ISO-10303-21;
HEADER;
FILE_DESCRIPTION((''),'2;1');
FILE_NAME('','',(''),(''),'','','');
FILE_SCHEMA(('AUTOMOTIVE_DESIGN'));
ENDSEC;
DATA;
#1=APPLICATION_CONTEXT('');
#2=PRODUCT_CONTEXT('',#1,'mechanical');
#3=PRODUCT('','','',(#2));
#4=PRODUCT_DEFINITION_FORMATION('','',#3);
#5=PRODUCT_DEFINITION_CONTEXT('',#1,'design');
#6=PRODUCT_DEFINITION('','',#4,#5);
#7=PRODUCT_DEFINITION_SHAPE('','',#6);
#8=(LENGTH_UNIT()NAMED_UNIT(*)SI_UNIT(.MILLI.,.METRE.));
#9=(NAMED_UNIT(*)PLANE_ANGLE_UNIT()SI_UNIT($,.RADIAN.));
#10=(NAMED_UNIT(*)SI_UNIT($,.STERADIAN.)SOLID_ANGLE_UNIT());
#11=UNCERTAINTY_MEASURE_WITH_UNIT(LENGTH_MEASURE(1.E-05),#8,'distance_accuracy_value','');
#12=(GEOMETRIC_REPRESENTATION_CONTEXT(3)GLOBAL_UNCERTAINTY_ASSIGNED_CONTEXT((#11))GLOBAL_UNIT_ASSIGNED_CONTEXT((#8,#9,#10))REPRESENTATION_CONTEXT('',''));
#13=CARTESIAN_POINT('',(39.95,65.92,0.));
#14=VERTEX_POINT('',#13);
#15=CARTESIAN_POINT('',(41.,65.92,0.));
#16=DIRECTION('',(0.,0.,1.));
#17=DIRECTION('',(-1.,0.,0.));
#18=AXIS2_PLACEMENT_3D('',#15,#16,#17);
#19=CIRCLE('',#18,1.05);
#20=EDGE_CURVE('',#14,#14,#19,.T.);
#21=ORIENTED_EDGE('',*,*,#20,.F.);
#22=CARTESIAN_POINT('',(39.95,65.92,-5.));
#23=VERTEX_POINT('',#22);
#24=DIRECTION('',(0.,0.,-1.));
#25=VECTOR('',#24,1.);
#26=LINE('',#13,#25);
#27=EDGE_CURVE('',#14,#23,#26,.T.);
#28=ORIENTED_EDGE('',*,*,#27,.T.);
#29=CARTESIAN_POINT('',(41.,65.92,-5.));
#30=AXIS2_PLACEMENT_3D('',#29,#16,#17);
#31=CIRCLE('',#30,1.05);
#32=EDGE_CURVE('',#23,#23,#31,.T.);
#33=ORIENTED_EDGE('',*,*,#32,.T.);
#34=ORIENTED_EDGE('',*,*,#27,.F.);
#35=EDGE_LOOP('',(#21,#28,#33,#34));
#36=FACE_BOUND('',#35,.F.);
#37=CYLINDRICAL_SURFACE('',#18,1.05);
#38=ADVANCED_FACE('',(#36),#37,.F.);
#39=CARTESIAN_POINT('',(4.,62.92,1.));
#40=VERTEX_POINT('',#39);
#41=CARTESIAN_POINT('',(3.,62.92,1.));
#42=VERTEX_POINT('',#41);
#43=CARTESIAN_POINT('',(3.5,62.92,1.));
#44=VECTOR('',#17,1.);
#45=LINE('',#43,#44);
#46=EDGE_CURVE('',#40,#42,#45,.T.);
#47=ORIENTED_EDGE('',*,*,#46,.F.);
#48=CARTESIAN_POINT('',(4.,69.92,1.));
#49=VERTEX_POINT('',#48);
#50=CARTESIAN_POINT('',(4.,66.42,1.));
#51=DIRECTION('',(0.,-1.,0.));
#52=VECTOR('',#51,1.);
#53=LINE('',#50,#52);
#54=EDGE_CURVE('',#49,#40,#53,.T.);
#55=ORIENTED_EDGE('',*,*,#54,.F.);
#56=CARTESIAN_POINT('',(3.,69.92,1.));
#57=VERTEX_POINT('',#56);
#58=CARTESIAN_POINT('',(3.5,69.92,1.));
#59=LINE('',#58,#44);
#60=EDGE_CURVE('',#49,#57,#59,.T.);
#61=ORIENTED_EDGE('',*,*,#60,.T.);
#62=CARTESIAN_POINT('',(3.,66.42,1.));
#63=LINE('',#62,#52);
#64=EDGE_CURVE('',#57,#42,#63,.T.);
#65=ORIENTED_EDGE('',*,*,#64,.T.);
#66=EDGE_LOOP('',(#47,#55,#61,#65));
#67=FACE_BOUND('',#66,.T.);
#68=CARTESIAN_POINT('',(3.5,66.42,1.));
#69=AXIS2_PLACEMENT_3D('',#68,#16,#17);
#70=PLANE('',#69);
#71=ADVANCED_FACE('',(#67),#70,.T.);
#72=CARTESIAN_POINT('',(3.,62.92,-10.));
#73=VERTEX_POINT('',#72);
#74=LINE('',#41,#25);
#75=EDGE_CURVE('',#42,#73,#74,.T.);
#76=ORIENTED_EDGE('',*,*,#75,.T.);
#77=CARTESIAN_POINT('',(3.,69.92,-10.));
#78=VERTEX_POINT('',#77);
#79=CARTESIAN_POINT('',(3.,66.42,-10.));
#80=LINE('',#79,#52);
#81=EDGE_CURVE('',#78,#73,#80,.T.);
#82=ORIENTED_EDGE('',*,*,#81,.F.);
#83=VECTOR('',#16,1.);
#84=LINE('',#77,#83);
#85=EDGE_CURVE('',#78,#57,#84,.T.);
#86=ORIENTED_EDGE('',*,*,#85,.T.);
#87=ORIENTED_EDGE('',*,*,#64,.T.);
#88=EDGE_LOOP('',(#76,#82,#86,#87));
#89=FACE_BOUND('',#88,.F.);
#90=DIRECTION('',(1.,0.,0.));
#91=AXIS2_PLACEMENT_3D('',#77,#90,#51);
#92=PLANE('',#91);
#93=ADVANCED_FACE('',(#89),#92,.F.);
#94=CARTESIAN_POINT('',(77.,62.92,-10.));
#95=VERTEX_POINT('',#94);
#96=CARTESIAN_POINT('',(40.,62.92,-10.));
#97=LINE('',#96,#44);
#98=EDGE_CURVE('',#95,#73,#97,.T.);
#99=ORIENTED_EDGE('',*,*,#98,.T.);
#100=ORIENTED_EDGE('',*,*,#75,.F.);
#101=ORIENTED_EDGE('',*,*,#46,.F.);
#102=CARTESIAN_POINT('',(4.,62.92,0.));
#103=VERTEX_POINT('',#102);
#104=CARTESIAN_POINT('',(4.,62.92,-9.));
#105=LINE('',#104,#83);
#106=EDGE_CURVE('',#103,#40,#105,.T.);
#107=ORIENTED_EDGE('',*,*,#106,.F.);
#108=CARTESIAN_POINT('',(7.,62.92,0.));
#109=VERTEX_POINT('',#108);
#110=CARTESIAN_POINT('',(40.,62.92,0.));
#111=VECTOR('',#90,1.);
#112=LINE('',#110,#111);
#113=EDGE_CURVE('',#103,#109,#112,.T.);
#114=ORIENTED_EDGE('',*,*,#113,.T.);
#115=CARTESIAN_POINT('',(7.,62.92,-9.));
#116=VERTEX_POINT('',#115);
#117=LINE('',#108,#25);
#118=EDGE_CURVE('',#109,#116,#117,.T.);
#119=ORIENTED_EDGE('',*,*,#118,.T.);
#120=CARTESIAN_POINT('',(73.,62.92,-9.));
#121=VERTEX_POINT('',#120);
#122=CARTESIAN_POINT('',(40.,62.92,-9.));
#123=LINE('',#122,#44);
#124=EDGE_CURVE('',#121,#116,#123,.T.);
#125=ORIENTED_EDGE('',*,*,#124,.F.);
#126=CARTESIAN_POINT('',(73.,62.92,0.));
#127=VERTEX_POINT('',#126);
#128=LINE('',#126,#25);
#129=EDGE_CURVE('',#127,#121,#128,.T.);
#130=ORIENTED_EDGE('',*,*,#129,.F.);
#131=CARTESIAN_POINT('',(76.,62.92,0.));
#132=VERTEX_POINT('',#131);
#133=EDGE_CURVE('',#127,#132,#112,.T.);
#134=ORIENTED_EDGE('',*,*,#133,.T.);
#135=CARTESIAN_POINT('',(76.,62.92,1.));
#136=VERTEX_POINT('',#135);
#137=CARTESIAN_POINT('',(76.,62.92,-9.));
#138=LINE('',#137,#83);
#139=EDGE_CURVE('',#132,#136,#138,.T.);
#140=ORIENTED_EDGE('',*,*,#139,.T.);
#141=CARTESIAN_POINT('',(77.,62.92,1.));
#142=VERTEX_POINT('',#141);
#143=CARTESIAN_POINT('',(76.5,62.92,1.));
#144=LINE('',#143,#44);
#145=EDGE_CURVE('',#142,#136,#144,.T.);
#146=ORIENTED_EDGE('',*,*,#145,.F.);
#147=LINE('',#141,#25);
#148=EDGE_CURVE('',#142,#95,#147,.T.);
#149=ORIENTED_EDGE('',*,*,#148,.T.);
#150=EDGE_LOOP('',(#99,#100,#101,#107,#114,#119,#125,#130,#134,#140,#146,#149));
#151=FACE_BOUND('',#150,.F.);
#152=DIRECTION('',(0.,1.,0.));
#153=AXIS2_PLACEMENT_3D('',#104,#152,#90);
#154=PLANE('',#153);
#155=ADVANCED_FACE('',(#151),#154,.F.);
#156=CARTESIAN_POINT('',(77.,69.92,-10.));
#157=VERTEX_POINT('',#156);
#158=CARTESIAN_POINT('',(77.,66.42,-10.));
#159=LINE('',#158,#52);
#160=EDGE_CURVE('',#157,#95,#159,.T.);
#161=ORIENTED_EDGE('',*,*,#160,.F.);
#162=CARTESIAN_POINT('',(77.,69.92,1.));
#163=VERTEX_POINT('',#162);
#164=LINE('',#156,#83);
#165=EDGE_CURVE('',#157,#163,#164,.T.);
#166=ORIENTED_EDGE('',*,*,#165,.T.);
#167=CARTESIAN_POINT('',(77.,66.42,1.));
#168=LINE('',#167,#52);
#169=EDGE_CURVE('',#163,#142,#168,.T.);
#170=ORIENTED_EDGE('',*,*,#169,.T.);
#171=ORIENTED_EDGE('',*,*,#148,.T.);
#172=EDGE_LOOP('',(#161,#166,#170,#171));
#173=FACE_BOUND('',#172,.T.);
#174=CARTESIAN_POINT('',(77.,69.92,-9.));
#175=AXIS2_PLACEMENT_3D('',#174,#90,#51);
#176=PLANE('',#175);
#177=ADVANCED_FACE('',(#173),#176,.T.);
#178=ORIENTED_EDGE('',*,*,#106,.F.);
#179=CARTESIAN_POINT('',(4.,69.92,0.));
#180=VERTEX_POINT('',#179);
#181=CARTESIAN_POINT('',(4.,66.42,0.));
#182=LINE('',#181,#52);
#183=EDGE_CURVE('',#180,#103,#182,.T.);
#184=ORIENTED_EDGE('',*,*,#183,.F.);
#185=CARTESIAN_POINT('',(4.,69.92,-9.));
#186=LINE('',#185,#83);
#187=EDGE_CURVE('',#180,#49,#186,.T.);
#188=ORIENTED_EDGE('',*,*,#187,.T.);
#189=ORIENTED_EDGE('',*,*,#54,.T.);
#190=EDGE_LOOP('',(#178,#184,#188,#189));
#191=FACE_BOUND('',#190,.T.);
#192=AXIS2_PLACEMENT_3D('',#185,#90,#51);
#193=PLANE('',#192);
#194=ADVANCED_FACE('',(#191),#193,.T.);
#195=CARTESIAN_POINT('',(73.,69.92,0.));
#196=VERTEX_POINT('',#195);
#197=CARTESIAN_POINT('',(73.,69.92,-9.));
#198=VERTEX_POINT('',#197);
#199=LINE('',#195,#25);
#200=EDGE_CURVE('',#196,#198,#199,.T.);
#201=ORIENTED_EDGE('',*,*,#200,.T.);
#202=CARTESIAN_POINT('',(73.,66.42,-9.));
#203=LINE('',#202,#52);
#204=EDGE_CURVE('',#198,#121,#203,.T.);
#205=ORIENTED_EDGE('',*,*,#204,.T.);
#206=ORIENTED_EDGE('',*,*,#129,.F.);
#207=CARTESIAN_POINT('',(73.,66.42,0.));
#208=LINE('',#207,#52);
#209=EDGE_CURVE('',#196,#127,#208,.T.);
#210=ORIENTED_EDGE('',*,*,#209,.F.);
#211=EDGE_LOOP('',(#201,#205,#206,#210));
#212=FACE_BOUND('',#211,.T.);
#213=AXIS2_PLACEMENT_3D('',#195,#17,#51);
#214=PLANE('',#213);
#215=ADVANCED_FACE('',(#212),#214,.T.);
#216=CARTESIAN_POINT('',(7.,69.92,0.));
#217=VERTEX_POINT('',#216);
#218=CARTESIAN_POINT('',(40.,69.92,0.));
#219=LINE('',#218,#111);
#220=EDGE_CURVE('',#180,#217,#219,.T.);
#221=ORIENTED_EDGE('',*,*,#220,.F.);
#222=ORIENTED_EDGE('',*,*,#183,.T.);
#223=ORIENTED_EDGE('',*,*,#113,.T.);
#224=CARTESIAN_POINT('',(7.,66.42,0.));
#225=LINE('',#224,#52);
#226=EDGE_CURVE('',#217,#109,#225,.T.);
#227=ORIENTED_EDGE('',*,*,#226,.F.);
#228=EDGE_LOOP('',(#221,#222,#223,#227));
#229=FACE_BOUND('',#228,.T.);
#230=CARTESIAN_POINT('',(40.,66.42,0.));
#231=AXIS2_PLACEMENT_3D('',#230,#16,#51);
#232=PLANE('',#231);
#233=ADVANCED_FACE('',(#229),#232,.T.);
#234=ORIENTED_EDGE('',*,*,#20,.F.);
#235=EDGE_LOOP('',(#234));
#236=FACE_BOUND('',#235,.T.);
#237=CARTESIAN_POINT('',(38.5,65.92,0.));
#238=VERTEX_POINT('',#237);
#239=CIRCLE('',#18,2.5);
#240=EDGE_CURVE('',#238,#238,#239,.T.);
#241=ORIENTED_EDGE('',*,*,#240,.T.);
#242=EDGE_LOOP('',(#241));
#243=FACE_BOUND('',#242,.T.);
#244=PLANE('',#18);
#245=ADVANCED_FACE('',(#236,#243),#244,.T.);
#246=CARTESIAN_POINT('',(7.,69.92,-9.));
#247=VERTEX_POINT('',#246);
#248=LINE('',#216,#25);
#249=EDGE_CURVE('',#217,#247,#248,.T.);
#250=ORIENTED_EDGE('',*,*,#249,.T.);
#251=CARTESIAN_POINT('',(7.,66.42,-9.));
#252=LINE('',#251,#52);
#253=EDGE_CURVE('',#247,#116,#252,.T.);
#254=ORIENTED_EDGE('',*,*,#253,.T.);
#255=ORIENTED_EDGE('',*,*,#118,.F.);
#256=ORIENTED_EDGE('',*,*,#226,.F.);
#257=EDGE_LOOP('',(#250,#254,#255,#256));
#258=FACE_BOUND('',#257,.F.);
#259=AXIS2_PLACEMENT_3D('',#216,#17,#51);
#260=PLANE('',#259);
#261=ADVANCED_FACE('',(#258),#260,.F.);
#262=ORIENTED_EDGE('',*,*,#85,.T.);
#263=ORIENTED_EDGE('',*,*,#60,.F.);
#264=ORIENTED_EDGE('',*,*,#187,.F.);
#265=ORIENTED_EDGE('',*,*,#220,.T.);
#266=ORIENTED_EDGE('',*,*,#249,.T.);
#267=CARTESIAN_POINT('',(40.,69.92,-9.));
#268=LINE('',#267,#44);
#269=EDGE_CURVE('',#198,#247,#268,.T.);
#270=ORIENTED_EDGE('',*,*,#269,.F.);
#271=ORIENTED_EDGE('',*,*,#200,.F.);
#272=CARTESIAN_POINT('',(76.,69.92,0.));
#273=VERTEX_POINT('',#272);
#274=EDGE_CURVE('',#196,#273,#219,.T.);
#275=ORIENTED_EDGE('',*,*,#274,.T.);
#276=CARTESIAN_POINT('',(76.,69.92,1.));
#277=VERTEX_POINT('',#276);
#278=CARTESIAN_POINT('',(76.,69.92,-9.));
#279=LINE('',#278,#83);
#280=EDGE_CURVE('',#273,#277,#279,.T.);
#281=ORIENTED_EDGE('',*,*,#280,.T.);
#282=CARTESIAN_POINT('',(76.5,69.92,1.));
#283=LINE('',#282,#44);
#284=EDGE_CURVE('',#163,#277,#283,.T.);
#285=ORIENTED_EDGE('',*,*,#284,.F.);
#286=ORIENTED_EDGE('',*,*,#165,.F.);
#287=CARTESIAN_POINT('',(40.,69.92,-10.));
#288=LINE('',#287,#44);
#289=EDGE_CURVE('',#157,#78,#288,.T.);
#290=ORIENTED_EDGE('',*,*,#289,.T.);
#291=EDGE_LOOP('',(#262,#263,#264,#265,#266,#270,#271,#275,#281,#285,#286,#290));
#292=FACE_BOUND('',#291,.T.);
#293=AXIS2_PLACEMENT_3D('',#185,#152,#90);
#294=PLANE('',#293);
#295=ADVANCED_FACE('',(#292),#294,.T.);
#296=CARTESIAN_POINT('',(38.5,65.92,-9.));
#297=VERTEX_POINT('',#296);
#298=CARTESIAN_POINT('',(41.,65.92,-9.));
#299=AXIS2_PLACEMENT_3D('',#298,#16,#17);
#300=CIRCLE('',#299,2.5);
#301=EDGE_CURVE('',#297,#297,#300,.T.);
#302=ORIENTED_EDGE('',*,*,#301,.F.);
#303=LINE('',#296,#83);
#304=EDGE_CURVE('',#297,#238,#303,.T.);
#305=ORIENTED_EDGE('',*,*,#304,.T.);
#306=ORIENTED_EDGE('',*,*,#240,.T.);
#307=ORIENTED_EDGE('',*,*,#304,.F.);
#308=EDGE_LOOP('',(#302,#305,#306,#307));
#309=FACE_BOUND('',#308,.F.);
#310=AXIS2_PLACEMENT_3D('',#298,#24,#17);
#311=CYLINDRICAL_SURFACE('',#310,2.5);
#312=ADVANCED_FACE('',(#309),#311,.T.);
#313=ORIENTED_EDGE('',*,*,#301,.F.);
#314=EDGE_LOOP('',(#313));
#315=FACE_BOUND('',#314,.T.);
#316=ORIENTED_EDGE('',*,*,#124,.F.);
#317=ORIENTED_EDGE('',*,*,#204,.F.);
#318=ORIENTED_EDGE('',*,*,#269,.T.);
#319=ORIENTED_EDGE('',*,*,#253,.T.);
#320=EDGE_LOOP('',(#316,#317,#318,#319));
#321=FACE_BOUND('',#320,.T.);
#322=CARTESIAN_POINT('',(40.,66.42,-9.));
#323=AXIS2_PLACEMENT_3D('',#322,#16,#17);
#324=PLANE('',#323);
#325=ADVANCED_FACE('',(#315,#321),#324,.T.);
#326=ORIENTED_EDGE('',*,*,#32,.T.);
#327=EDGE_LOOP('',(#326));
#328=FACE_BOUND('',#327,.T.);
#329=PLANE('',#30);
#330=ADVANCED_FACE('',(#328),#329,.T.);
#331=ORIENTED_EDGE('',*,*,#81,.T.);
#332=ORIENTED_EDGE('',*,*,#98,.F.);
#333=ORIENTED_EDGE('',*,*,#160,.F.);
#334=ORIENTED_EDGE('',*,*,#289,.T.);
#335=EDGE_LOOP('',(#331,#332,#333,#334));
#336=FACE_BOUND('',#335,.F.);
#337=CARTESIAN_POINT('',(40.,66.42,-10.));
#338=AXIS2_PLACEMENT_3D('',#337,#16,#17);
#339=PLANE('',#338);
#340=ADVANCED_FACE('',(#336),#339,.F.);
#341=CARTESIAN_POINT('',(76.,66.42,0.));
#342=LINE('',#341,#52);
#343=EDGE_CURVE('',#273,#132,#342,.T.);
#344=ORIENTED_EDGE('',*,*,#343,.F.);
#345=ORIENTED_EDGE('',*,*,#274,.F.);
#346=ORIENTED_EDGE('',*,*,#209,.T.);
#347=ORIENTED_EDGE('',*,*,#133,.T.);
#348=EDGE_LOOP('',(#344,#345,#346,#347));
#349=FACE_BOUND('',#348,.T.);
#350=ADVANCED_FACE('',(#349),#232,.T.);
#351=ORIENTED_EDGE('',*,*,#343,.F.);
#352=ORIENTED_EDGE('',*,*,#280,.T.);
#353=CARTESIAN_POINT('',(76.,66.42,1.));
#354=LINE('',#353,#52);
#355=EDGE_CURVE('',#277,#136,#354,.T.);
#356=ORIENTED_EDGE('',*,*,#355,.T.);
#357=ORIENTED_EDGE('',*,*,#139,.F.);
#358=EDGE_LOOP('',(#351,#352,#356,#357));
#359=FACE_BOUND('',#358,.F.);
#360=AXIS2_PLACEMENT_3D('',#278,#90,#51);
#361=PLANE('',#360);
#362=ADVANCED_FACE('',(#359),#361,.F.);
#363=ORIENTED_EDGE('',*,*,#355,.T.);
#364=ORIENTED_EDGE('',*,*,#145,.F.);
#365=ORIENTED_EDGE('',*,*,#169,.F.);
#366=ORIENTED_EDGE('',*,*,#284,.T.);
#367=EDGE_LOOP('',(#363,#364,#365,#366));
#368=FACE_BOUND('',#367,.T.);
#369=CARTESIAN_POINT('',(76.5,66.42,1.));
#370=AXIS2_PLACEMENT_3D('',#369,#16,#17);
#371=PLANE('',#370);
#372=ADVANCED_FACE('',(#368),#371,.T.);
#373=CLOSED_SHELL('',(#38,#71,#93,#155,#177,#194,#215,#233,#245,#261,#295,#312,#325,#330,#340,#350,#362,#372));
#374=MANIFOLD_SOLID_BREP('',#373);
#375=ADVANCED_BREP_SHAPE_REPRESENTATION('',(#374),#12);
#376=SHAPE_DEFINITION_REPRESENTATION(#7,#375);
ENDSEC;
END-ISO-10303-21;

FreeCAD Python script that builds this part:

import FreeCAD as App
import Part
import Sketcher

V = App.Vector
Q = App.Units.Quantity


def add_polygon(sketch, points):
    """Adds a closed chain of lines whose ends are joined by coincident constraints."""
    first, n = sketch.GeometryCount, len(points)
    for a, b in zip(points, points[1:] + points[:1]):
        sketch.addGeometry(Part.LineSegment(App.Vector(*a, 0), App.Vector(*b, 0)), False)
    for i in range(n):
        sketch.addConstraint(Sketcher.Constraint("Coincident", first + i, 2, first + (i + 1) % n, 1))

doc = App.newDocument("Part")
body = doc.addObject("PartDesign::Body", "Body")

# Sketch on XY plane
sketch1 = body.newObject("Sketcher::SketchObject", "Sketch")
sketch1.AttachmentSupport = (doc.getObject("XY_Plane"), [""])
sketch1.MapMode = "FlatFace"
add_polygon(sketch1, [(-2, 8), (-2, 1), (72, 1), (72, 8)])  # lines 0-3
sketch1.addConstraint([
    Sketcher.Constraint("Vertical", 0),
    Sketcher.Constraint("Horizontal", 1),
    Sketcher.Constraint("Vertical", 2),
    Sketcher.Constraint("Horizontal", 3),
    Sketcher.Constraint("DistanceX", 1, 1, 1, 2, Q("74 mm")),
    Sketcher.Constraint("DistanceY", 0, 2, 0, 1, Q("7 mm")),
    Sketcher.Constraint("DistanceX", 0, 2, -1, 1, Q("2 mm")),
    Sketcher.Constraint("DistanceY", -1, 1, 0, 2, Q("1.08 mm")),
])
pad1 = body.newObject("PartDesign::Pad", "Pad")
pad1.Profile = sketch1
pad1.Length = 1

# Sketch on XY plane
sketch2 = body.newObject("Sketcher::SketchObject", "Sketch001")
sketch2.AttachmentSupport = (doc.getObject("XY_Plane"), [""])
sketch2.MapMode = "FlatFace"
sketch2.AttachmentOffset = App.Placement(V(0, 0, 1), App.Rotation())
add_polygon(sketch2, [(-2, 8.1), (-2, 1.1), (-1, 1.1), (-1, 8.1)])  # lines 0-3
add_polygon(sketch2, [(71, 8.1), (71, 1.1), (72, 1.1), (72, 8.1)])  # lines 4-7
sketch2.addConstraint([
    Sketcher.Constraint("Vertical", 0),
    Sketcher.Constraint("Horizontal", 1),
    Sketcher.Constraint("Vertical", 2),
    Sketcher.Constraint("Horizontal", 3),
    Sketcher.Constraint("Vertical", 4),
    Sketcher.Constraint("Horizontal", 5),
    Sketcher.Constraint("Vertical", 6),
    Sketcher.Constraint("Horizontal", 7),
    Sketcher.Constraint("Horizontal", 1, 2, 4, 2),
    Sketcher.Constraint("Horizontal", 3, 2, 6, 2),
    Sketcher.Constraint("Equal", 3, 5),
    Sketcher.Constraint("DistanceX", 1, 1, 1, 2, Q("1 mm")),
    Sketcher.Constraint("DistanceY", 0, 2, 0, 1, Q("7 mm")),
    Sketcher.Constraint("DistanceX", 0, 2, -1, 1, Q("2 mm")),
    Sketcher.Constraint("DistanceX", -1, 1, 4, 2, Q("71 mm")),
    Sketcher.Constraint("DistanceY", -1, 1, 0, 2, Q("1.08 mm")),
])
pad2 = body.newObject("PartDesign::Pad", "Pad001")
pad2.Profile = sketch2
pad2.Length = 10

# Sketch on XY plane
sketch3 = body.newObject("Sketcher::SketchObject", "Sketch002")
sketch3.AttachmentSupport = (doc.getObject("XY_Plane"), [""])
sketch3.MapMode = "FlatFace"
sketch3.AttachmentOffset = App.Placement(V(0, 0, 1), App.Rotation())
add_polygon(sketch3, [(-1, 1), (71, 1), (71, 8), (-1, 8)])  # lines 0-3
sketch3.addConstraint([
    Sketcher.Constraint("Horizontal", 0),
    Sketcher.Constraint("Vertical", 1),
    Sketcher.Constraint("Horizontal", 2),
    Sketcher.Constraint("Vertical", 3),
    Sketcher.Constraint("DistanceX", 0, 1, 0, 2, Q("72 mm")),
    Sketcher.Constraint("DistanceY", 1, 1, 1, 2, Q("7 mm")),
    Sketcher.Constraint("DistanceX", -1, 1, 0, 2, Q("71 mm")),
    Sketcher.Constraint("DistanceY", -1, 1, 0, 2, Q("1.08 mm")),
])
pad3 = body.newObject("PartDesign::Pad", "Pad002")
pad3.Profile = sketch3
pad3.Length = 9

# Sketch on XY plane
sketch4 = body.newObject("Sketcher::SketchObject", "Sketch003")
sketch4.AttachmentSupport = (doc.getObject("XY_Plane"), [""])
sketch4.MapMode = "FlatFace"
sketch4.AttachmentOffset = App.Placement(V(0, 0, 10), App.Rotation())
add_polygon(sketch4, [(2, 8), (2, 1), (68, 1), (68, 8)])  # lines 0-3
sketch4.addConstraint([
    Sketcher.Constraint("Vertical", 0),
    Sketcher.Constraint("Horizontal", 1),
    Sketcher.Constraint("Vertical", 2),
    Sketcher.Constraint("Horizontal", 3),
    Sketcher.Constraint("DistanceX", 1, 1, 1, 2, Q("66 mm")),
    Sketcher.Constraint("DistanceY", 0, 2, 0, 1, Q("7 mm")),
    Sketcher.Constraint("DistanceX", -1, 1, 0, 2, Q("2 mm")),
    Sketcher.Constraint("DistanceY", -1, 1, 0, 2, Q("1.08 mm")),
])
pocket1 = body.newObject("PartDesign::Pocket", "Pocket")
pocket1.Profile = sketch4
pocket1.Length = 9

# Sketch on XY plane
sketch5 = body.newObject("Sketcher::SketchObject", "Sketch004")
sketch5.AttachmentSupport = (doc.getObject("XY_Plane"), [""])
sketch5.MapMode = "FlatFace"
sketch5.AttachmentOffset = App.Placement(V(0, 0, 1), App.Rotation())
sketch5.addGeometry(Part.Circle(V(34, 5.1, 0), V(0, 0, 1), 2.5), False)
sketch5.addConstraint([
    Sketcher.Constraint("Diameter", 0, Q("5 mm")),
    Sketcher.Constraint("DistanceX", -1, 1, 0, 3, Q("34 mm")),
    Sketcher.Constraint("DistanceY", -1, 1, 0, 3, Q("5.08 mm")),
])
pad4 = body.newObject("PartDesign::Pad", "Pad003")
pad4.Profile = sketch5
pad4.Length = 9

# Sketch on XY plane
sketch6 = body.newObject("Sketcher::SketchObject", "Sketch005")
sketch6.AttachmentSupport = (doc.getObject("XY_Plane"), [""])
sketch6.MapMode = "FlatFace"
sketch6.AttachmentOffset = App.Placement(V(0, 0, 10), App.Rotation())
sketch6.addGeometry(Part.Circle(V(34, 5.1, 0), V(0, 0, 1), 1.1), False)
sketch6.addConstraint([
    Sketcher.Constraint("Diameter", 0, Q("2.1 mm")),
    Sketcher.Constraint("DistanceX", -1, 1, 0, 3, Q("34 mm")),
    Sketcher.Constraint("DistanceY", -1, 1, 0, 3, Q("5.08 mm")),
])
pocket2 = body.newObject("PartDesign::Pocket", "Pocket001")
pocket2.Profile = sketch6
pocket2.Length = 5
body2 = doc.addObject("PartDesign::Body", "Body001")
doc.recompute()

body.Placement = App.Placement(V(75, 71, -10), App.Rotation(V(0, 0, 1), 180))
boolean = body2.newObject("PartDesign::Boolean", "Boolean")
boolean.Type = "Fuse"
boolean.addObjects([body])

doc.recompute()
